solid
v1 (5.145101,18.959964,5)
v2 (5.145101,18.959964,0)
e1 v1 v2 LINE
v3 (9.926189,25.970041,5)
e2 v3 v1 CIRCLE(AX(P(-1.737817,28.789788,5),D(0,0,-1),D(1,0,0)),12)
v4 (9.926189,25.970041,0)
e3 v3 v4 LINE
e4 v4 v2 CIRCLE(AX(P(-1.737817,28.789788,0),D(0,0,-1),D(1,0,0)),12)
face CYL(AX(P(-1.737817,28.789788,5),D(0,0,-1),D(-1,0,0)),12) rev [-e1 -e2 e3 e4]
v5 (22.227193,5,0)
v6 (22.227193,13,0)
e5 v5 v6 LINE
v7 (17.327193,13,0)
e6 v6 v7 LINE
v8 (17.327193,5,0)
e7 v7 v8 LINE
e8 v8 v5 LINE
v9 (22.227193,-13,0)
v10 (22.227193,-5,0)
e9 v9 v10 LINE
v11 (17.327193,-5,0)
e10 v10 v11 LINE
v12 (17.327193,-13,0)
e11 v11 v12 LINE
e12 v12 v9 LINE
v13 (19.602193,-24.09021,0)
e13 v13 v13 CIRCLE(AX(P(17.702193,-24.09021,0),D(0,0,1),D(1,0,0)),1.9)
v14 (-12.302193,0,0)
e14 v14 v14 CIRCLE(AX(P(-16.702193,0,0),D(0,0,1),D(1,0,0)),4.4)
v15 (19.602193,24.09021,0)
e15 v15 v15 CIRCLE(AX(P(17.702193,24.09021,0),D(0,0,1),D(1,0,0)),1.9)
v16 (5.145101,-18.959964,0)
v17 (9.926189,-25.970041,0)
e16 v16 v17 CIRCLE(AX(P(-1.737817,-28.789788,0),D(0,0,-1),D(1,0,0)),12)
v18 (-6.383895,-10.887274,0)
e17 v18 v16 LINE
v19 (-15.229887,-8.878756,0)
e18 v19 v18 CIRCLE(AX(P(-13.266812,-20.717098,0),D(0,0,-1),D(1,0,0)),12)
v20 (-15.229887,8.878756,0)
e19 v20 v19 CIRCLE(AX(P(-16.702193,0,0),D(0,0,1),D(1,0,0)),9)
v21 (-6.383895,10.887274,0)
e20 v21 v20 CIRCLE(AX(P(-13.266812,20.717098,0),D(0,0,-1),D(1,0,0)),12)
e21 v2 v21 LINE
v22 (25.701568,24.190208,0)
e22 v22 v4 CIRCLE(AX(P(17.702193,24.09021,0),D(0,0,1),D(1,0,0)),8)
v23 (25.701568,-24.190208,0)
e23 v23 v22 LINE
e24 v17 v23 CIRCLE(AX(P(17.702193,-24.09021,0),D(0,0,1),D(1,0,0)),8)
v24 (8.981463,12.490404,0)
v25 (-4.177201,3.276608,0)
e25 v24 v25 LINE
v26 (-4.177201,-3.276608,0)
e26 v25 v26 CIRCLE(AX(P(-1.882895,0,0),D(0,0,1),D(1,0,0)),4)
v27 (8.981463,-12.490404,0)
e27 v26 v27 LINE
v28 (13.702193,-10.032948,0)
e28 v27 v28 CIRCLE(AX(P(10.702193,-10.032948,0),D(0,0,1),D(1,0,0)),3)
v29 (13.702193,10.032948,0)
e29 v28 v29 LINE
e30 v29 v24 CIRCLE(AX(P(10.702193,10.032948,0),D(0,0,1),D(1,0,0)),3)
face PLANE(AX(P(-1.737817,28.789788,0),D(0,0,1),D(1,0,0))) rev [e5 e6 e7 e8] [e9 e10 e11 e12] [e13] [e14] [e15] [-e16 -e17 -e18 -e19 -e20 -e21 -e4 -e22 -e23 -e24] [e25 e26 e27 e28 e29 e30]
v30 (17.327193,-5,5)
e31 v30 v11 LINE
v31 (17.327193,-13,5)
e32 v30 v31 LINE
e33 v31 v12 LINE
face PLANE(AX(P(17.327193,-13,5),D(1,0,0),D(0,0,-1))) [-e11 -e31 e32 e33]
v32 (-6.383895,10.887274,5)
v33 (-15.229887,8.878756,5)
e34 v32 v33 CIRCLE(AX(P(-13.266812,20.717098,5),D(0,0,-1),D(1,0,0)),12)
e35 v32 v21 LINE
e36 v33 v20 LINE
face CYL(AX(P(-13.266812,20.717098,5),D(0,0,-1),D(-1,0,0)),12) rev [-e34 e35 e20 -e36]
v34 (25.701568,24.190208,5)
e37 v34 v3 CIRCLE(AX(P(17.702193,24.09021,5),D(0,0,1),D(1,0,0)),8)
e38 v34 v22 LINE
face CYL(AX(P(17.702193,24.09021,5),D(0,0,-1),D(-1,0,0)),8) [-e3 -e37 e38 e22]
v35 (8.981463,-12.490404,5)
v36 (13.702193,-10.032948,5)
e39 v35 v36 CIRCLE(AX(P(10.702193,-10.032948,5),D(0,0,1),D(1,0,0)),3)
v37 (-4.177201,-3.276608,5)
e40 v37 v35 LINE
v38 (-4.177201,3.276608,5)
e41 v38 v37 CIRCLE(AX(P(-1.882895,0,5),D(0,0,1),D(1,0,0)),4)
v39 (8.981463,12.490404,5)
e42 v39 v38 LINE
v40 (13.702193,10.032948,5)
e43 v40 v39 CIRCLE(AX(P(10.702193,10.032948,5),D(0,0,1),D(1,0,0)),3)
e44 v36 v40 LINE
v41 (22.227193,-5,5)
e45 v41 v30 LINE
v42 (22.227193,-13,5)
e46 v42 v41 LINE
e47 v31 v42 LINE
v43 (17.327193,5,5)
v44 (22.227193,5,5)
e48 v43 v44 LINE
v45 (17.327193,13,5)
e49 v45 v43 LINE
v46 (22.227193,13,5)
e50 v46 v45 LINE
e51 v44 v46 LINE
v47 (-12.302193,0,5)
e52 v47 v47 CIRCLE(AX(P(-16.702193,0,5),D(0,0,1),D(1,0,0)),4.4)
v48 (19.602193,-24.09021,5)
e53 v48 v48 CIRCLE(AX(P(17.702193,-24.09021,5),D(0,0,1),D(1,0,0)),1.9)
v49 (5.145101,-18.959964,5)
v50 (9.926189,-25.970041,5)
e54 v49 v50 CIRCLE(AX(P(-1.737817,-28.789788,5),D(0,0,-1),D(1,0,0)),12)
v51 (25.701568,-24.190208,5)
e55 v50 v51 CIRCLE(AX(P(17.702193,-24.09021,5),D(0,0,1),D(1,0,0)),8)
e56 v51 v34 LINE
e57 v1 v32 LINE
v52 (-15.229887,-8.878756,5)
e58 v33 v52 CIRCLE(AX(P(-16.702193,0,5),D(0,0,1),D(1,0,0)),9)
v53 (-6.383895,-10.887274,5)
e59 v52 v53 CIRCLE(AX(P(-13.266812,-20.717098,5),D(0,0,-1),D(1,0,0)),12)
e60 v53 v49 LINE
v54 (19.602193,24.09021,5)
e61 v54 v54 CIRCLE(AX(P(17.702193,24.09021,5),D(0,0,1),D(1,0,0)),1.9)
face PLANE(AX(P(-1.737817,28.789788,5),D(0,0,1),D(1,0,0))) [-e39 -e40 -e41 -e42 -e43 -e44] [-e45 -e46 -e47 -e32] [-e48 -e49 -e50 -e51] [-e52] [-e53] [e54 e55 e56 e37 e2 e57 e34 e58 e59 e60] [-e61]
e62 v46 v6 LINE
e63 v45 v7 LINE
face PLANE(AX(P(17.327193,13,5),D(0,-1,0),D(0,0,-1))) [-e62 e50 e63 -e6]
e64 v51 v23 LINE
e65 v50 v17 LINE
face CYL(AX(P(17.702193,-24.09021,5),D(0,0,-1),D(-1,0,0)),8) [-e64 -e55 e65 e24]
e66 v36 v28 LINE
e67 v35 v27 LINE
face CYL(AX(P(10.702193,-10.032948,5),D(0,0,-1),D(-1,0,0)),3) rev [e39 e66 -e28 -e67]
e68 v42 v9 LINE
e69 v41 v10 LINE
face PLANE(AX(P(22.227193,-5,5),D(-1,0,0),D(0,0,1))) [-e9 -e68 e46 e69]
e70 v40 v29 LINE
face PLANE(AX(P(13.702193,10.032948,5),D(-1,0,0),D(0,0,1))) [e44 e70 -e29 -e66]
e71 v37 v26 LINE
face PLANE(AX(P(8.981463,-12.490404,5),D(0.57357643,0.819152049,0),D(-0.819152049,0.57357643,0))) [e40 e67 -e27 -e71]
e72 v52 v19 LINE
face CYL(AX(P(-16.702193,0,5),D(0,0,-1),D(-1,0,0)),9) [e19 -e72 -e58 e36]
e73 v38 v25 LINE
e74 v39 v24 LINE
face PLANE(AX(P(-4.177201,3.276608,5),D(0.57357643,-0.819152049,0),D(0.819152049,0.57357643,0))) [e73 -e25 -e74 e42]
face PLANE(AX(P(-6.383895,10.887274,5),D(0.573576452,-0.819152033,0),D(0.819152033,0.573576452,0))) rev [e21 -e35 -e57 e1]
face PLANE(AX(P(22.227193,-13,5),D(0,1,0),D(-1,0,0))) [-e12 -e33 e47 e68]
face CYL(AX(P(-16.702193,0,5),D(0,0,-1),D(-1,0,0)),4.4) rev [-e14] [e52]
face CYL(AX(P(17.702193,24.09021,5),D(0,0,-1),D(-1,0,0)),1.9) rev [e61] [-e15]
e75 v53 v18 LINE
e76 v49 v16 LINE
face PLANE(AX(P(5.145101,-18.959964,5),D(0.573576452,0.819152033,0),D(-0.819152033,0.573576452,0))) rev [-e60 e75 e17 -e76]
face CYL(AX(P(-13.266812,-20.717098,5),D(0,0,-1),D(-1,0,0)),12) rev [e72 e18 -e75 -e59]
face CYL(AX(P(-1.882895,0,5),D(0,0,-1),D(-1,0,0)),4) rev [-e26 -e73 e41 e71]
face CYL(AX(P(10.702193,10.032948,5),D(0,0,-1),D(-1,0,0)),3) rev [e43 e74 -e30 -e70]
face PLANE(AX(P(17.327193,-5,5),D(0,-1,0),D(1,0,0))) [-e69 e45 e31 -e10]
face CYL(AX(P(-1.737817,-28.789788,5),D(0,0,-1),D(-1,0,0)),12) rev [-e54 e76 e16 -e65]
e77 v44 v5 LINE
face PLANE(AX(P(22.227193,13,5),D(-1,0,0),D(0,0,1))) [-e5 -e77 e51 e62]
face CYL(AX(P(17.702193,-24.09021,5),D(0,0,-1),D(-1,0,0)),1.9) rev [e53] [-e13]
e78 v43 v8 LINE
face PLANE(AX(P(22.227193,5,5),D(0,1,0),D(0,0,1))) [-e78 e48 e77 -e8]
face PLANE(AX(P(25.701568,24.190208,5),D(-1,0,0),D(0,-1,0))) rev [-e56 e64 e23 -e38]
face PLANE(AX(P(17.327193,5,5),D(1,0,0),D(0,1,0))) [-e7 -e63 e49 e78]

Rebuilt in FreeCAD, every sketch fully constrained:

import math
import FreeCAD as App
import Part
import Sketcher
Q = App.Units.Quantity

doc = App.newDocument("Part")
body = doc.addObject("PartDesign::Body", "Body")

sketch1 = body.newObject("Sketcher::SketchObject", "Sketch")
sketch1.AttachmentSupport = (doc.getObject("XY_Plane"), [""])
sketch1.MapMode = "FlatFace"
sketch1.addGeometry([
    Part.LineSegment(App.Vector(25.7, -24.2, 0), App.Vector(25.7, 24.2, 0)),
    Part.ArcOfCircle(Part.Circle(App.Vector(17.7, 24.1, 0), App.Vector(0, 0, 1), 8), math.radians(1), math.radians(166)),
    Part.ArcOfCircle(Part.Circle(App.Vector(-1.7, 28.8, 0), App.Vector(0, 0, 1), 12), math.radians(-55), math.radians(-14)),
    Part.LineSegment(App.Vector(5.1, 19, 0), App.Vector(-6.4, 10.9, 0)),
    Part.ArcOfCircle(Part.Circle(App.Vector(-13.3, 20.7, 0), App.Vector(0, 0, 1), 12), math.radians(-99), math.radians(-55)),
    Part.ArcOfCircle(Part.Circle(App.Vector(-16.7, 0, 0), App.Vector(0, 0, 1), 9), math.radians(81), math.radians(279)),
    Part.ArcOfCircle(Part.Circle(App.Vector(-13.3, -20.7, 0), App.Vector(0, 0, 1), 12), math.radians(55), math.radians(99)),
    Part.LineSegment(App.Vector(-6.4, -10.9, 0), App.Vector(5.1, -19, 0)),
    Part.ArcOfCircle(Part.Circle(App.Vector(-1.7, -28.8, 0), App.Vector(0, 0, 1), 12), math.radians(14), math.radians(55)),
    Part.ArcOfCircle(Part.Circle(App.Vector(17.7, -24.1, 0), App.Vector(0, 0, 1), 8), math.radians(-166), math.radians(-1)),
    Part.Circle(App.Vector(17.7, -24.1, 0), App.Vector(0, 0, 1), 1.9),
    Part.LineSegment(App.Vector(17.3, -13, 0), App.Vector(17.3, -5, 0)),
    Part.LineSegment(App.Vector(17.3, -5, 0), App.Vector(22.2, -5, 0)),
    Part.LineSegment(App.Vector(22.2, -5, 0), App.Vector(22.2, -13, 0)),
    Part.LineSegment(App.Vector(22.2, -13, 0), App.Vector(17.3, -13, 0)),
    Part.LineSegment(App.Vector(17.3, 5, 0), App.Vector(17.3, 13, 0)),
    Part.LineSegment(App.Vector(17.3, 13, 0), App.Vector(22.2, 13, 0)),
    Part.LineSegment(App.Vector(22.2, 13, 0), App.Vector(22.2, 5, 0)),
    Part.LineSegment(App.Vector(22.2, 5, 0), App.Vector(17.3, 5, 0)),
    Part.LineSegment(App.Vector(9, -12.5, 0), App.Vector(-4.2, -3.3, 0)),
    Part.ArcOfCircle(Part.Circle(App.Vector(-1.9, 0, 0), App.Vector(0, 0, 1), 4), math.radians(125), math.radians(235)),
    Part.LineSegment(App.Vector(-4.2, 3.3, 0), App.Vector(9, 12.5, 0)),
    Part.ArcOfCircle(Part.Circle(App.Vector(10.7, 10, 0), App.Vector(0, 0, 1), 3), math.radians(0), math.radians(125)),
    Part.LineSegment(App.Vector(13.7, 10, 0), App.Vector(13.7, -10, 0)),
    Part.ArcOfCircle(Part.Circle(App.Vector(10.7, -10, 0), App.Vector(0, 0, 1), 3), math.radians(-125), math.radians(0)),
    Part.Circle(App.Vector(17.7, 24.1, 0), App.Vector(0, 0, 1), 1.9),
    Part.Circle(App.Vector(-16.7, 0, 0), App.Vector(0, 0, 1), 4.4),
], False)
sketch1.addConstraint([
    Sketcher.Constraint("Coincident", 0, 2, 1, 1),
    Sketcher.Constraint("Tangent", 1, 2, 2, 2),
    Sketcher.Constraint("Tangent", 2, 1, 3, 1),
    Sketcher.Constraint("Tangent", 3, 2, 4, 2),
    Sketcher.Constraint("Tangent", 4, 1, 5, 1),
    Sketcher.Constraint("Tangent", 5, 2, 6, 2),
    Sketcher.Constraint("Tangent", 6, 1, 7, 1),
    Sketcher.Constraint("Tangent", 7, 2, 8, 2),
    Sketcher.Constraint("Tangent", 8, 1, 9, 1),
    Sketcher.Constraint("Coincident", 9, 2, 0, 1),
    Sketcher.Constraint("Coincident", 11, 2, 12, 1),
    Sketcher.Constraint("Coincident", 12, 2, 13, 1),
    Sketcher.Constraint("Coincident", 13, 2, 14, 1),
    Sketcher.Constraint("Coincident", 14, 2, 11, 1),
    Sketcher.Constraint("Coincident", 15, 2, 16, 1),
    Sketcher.Constraint("Coincident", 16, 2, 17, 1),
    Sketcher.Constraint("Coincident", 17, 2, 18, 1),
    Sketcher.Constraint("Coincident", 18, 2, 15, 1),
    Sketcher.Constraint("Tangent", 19, 2, 20, 2),
    Sketcher.Constraint("Tangent", 20, 1, 21, 1),
    Sketcher.Constraint("Tangent", 21, 2, 22, 2),
    Sketcher.Constraint("Tangent", 22, 1, 23, 1),
    Sketcher.Constraint("Tangent", 23, 2, 24, 2),
    Sketcher.Constraint("Tangent", 24, 1, 19, 1),
    Sketcher.Constraint("Vertical", 0),
    Sketcher.Constraint("Vertical", 11),
    Sketcher.Constraint("Horizontal", 12),
    Sketcher.Constraint("Vertical", 13),
    Sketcher.Constraint("Horizontal", 14),
    Sketcher.Constraint("Vertical", 15),
    Sketcher.Constraint("Horizontal", 16),
    Sketcher.Constraint("Vertical", 17),
    Sketcher.Constraint("Horizontal", 18),
    Sketcher.Constraint("Vertical", 23),
    Sketcher.Constraint("Coincident", 10, 3, 9, 3),
    Sketcher.Constraint("Coincident", 25, 3, 1, 3),
    Sketcher.Constraint("Coincident", 26, 3, 5, 3),
    Sketcher.Constraint("Equal", 2, 4),
    Sketcher.Constraint("Equal", 4, 6),
    Sketcher.Constraint("Equal", 6, 8),
    Sketcher.Constraint("Equal", 1, 9),
    Sketcher.Constraint("Equal", 22, 24),
    Sketcher.Constraint("Equal", 10, 25),
    Sketcher.Constraint("Symmetric", 4, 3, 6, 3, -1),
    Sketcher.Constraint("Symmetric", 2, 3, 8, 3, -1),
    Sketcher.Constraint("Symmetric", 14, 2, 15, 2, -1),
    Sketcher.Constraint("Symmetric", 12, 2, 17, 2, -1),
    Sketcher.Constraint("Symmetric", 19, 2, 20, 1, -1),
    Sketcher.Constraint("Parallel", 7, 19),
    Sketcher.Constraint("Vertical", 1, 3, 9, 3),
    Sketcher.Constraint("Radius", 1, 8.0),
    Sketcher.Constraint("Radius", 2, 12.0),
    Sketcher.Constraint("Radius", 5, 9.0),
    Sketcher.Constraint("Radius", 20, 4.0),
    Sketcher.Constraint("Radius", 22, 3.0),
    Sketcher.Constraint("Diameter", 10, 3.8),
    Sketcher.Constraint("Diameter", 26, 8.8),
    Sketcher.Constraint("DistanceY", 11, 1, 11, 2, 8.0),
    Sketcher.Constraint("Angle", 3, Q("-144.999999 deg")),
    Sketcher.Constraint("DistanceX", 12, 1, 12, 2, 4.9),
    Sketcher.Constraint("DistanceY", 11, 2, -1, 1, 5.0),
    Sketcher.Constraint("DistanceX", 22, 3, 1, 3, 7.0),
    Sketcher.Constraint("DistanceY", 1, 3, 0, 2, 0.099998),
    Sketcher.Constraint("DistanceY", 8, 3, 1, 3, 52.879999),
    Sketcher.Constraint("DistanceX", 3, 2, 20, 3, 4.501),
    Sketcher.Constraint("DistanceX", 24, 3, 11, 2, 6.625),
    Sketcher.Constraint("DistanceY", -1, 1, 4, 3, 20.717098),
    Sketcher.Constraint("DistanceX", -1, 1, 2, 1, 5.145101),
    Sketcher.Constraint("DistanceX", 19, 2, -1, 1, 4.177201),
])
pad1 = body.newObject("PartDesign::Pad", "Pad")
pad1.Profile = sketch1
pad1.Length = 5

doc.recompute()
